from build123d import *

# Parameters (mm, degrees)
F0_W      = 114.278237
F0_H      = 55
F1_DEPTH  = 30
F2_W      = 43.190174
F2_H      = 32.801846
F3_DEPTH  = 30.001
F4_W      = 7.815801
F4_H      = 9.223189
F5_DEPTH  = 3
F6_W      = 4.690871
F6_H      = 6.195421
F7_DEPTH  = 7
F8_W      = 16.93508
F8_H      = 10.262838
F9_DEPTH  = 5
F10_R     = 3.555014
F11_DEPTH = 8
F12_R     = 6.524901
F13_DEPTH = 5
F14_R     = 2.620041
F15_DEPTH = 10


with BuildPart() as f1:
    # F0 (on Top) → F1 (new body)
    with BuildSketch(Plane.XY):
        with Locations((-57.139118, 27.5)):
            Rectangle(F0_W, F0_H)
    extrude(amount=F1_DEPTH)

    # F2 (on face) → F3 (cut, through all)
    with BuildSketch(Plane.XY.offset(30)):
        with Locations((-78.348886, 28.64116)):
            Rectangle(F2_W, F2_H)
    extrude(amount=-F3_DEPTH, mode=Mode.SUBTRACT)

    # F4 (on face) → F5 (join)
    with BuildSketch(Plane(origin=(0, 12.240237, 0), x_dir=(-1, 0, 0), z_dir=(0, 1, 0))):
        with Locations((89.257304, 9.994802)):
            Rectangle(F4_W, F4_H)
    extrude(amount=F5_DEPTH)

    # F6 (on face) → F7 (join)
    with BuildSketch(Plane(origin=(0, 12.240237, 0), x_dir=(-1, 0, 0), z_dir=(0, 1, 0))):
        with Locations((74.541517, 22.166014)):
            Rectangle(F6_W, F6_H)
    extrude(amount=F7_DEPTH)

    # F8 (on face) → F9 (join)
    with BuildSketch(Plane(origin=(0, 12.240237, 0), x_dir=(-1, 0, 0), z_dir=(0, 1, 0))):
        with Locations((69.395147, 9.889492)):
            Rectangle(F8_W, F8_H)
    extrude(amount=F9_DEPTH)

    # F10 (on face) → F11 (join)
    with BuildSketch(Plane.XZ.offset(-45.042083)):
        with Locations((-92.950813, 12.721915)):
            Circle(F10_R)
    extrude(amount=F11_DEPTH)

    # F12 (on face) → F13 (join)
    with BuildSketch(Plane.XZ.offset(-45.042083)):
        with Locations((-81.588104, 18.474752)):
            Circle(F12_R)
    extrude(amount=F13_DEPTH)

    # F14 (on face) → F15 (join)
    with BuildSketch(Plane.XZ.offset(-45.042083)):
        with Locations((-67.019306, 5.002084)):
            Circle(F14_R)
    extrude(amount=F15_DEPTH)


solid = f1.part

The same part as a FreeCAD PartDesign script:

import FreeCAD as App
import Part
import Sketcher
Q = App.Units.Quantity


def add_polygon(sketch, points):
    """Adds a closed chain of lines whose ends are joined by coincident constraints."""
    first, n = sketch.GeometryCount, len(points)
    for a, b in zip(points, points[1:] + points[:1]):
        sketch.addGeometry(Part.LineSegment(App.Vector(*a, 0), App.Vector(*b, 0)), False)
    for i in range(n):
        sketch.addConstraint(Sketcher.Constraint("Coincident", first + i, 2, first + (i + 1) % n, 1))

doc = App.newDocument("Part")
body = doc.addObject("PartDesign::Body", "Body")

sketch1 = doc.addObject("Sketcher::SketchObject", "Sketch")
body.addObject(sketch1)
sketch1.AttachmentSupport = (doc.XY_Plane, [""])
sketch1.MapMode = "FlatFace"
add_polygon(sketch1, [(-114, 55), (-114, 0), (0, 0), (0, 55)])
sketch1.addConstraint([
    Sketcher.Constraint("Vertical", 0),
    Sketcher.Constraint("Horizontal", 1),
    Sketcher.Constraint("Vertical", 2),
    Sketcher.Constraint("Horizontal", 3),
    Sketcher.Constraint("Coincident", 1, 2, -1, 1),
    Sketcher.Constraint("DistanceY", 0, 2, 0, 1, Q("55 mm")),
    Sketcher.Constraint("DistanceX", 1, 1, 1, 2, Q("114.278237 mm")),
])
pad1 = doc.addObject("PartDesign::Pad", "Pad")
body.addObject(pad1)
pad1.Profile = sketch1
pad1.Length = 30

sketch2 = doc.addObject("Sketcher::SketchObject", "Sketch001")
body.addObject(sketch2)
sketch2.AttachmentSupport = (doc.XY_Plane, [""])
sketch2.MapMode = "FlatFace"
sketch2.AttachmentOffset = App.Placement(App.Vector(0, 0, 30), App.Rotation())
add_polygon(sketch2, [(-100, 45), (-100, 12), (-57, 12), (-57, 45)])
sketch2.addConstraint([
    Sketcher.Constraint("Vertical", 0),
    Sketcher.Constraint("Horizontal", 1),
    Sketcher.Constraint("Vertical", 2),
    Sketcher.Constraint("Horizontal", 3),
    Sketcher.Constraint("DistanceX", 1, 2, -1, 1, Q("56.753799 mm")),
    Sketcher.Constraint("DistanceX", 1, 1, 1, 2, Q("43.190174 mm")),
    Sketcher.Constraint("DistanceY", 0, 2, 0, 1, Q("32.801846 mm")),
    Sketcher.Constraint("DistanceY", -1, 1, 0, 2, Q("12.240237 mm")),
])
pocket1 = doc.addObject("PartDesign::Pocket", "Pocket")
body.addObject(pocket1)
pocket1.Profile = sketch2
pocket1.Type = "ThroughAll"

sketch3 = doc.addObject("Sketcher::SketchObject", "Sketch002")
body.addObject(sketch3)
sketch3.AttachmentSupport = (doc.XZ_Plane, [""])
sketch3.MapMode = "FlatFace"
sketch3.AttachmentOffset = App.Placement(App.Vector(0, 0, -12.240237), App.Rotation())
add_polygon(sketch3, [(-85, 15), (-85, 5), (-93, 5), (-93, 15)])
sketch3.addConstraint([
    Sketcher.Constraint("Vertical", 0),
    Sketcher.Constraint("Horizontal", 1),
    Sketcher.Constraint("Vertical", 2),
    Sketcher.Constraint("Horizontal", 3),
    Sketcher.Constraint("DistanceX", 1, 2, 1, 1, Q("7.815801 mm")),
    Sketcher.Constraint("DistanceY", 0, 2, 0, 1, Q("9.223189 mm")),
    Sketcher.Constraint("DistanceX", 0, 2, -1, 1, Q("85.349403 mm")),
    Sketcher.Constraint("DistanceY", -1, 1, 0, 2, Q("5.383208 mm")),
])
pad2 = doc.addObject("PartDesign::Pad", "Pad001")
body.addObject(pad2)
pad2.Profile = sketch3
pad2.Length = 3
pad2.Reversed = True

sketch4 = doc.addObject("Sketcher::SketchObject", "Sketch003")
body.addObject(sketch4)
sketch4.AttachmentSupport = (doc.XZ_Plane, [""])
sketch4.MapMode = "FlatFace"
sketch4.AttachmentOffset = App.Placement(App.Vector(0, 0, -12.240237), App.Rotation())
add_polygon(sketch4, [(-72.2, 25.3), (-72.2, 19.1), (-76.9, 19.1), (-76.9, 25.3)])
sketch4.addConstraint([
    Sketcher.Constraint("Vertical", 0),
    Sketcher.Constraint("Horizontal", 1),
    Sketcher.Constraint("Vertical", 2),
    Sketcher.Constraint("Horizontal", 3),
    Sketcher.Constraint("DistanceX", 1, 2, 1, 1, Q("4.690871 mm")),
    Sketcher.Constraint("DistanceY", 0, 2, 0, 1, Q("6.195421 mm")),
    Sketcher.Constraint("DistanceX", 0, 2, -1, 1, Q("72.196082 mm")),
    Sketcher.Constraint("DistanceY", -1, 1, 0, 2, Q("19.068303 mm")),
])
pad3 = doc.addObject("PartDesign::Pad", "Pad002")
body.addObject(pad3)
pad3.Profile = sketch4
pad3.Length = 7
pad3.Reversed = True

sketch5 = doc.addObject("Sketcher::SketchObject", "Sketch004")
body.addObject(sketch5)
sketch5.AttachmentSupport = (doc.XZ_Plane, [""])
sketch5.MapMode = "FlatFace"
sketch5.AttachmentOffset = App.Placement(App.Vector(0, 0, -12.240237), App.Rotation())
add_polygon(sketch5, [(-61, 15), (-61, 5), (-78, 5), (-78, 15)])
sketch5.addConstraint([
    Sketcher.Constraint("Vertical", 0),
    Sketcher.Constraint("Horizontal", 1),
    Sketcher.Constraint("Vertical", 2),
    Sketcher.Constraint("Horizontal", 3),
    Sketcher.Constraint("DistanceX", 1, 2, 1, 1, Q("16.93508 mm")),
    Sketcher.Constraint("DistanceY", 0, 2, 0, 1, Q("10.262838 mm")),
    Sketcher.Constraint("DistanceY", -1, 1, 2, 2, Q("15.020911 mm")),
    Sketcher.Constraint("DistanceX", 0, 2, -1, 1, Q("60.927607 mm")),
])
pad4 = doc.addObject("PartDesign::Pad", "Pad003")
body.addObject(pad4)
pad4.Profile = sketch5
pad4.Length = 5
pad4.Reversed = True

sketch6 = doc.addObject("Sketcher::SketchObject", "Sketch005")
body.addObject(sketch6)
sketch6.AttachmentSupport = (doc.XZ_Plane, [""])
sketch6.MapMode = "FlatFace"
sketch6.AttachmentOffset = App.Placement(App.Vector(0, 0, -45.042083), App.Rotation())
sketch6.addGeometry(Part.Circle(App.Vector(-93, 12.7, 0), App.Vector(0, 0, 1), 3.6), False)
sketch6.addConstraint([
    Sketcher.Constraint("Diameter", 0, Q("7.110028 mm")),
    Sketcher.Constraint("DistanceX", 0, 3, -1, 1, Q("92.950813 mm")),
    Sketcher.Constraint("DistanceY", -1, 1, 0, 3, Q("12.721915 mm")),
])
pad5 = doc.addObject("PartDesign::Pad", "Pad004")
body.addObject(pad5)
pad5.Profile = sketch6
pad5.Length = 8

sketch7 = doc.addObject("Sketcher::SketchObject", "Sketch006")
body.addObject(sketch7)
sketch7.AttachmentSupport = (doc.XZ_Plane, [""])
sketch7.MapMode = "FlatFace"
sketch7.AttachmentOffset = App.Placement(App.Vector(0, 0, -45.042083), App.Rotation())
sketch7.addGeometry(Part.Circle(App.Vector(-82, 18, 0), App.Vector(0, 0, 1), 7), False)
sketch7.addConstraint([
    Sketcher.Constraint("Diameter", 0, Q("13.049802 mm")),
    Sketcher.Constraint("DistanceY", -1, 1, 0, 3, Q("18.474752 mm")),
    Sketcher.Constraint("DistanceX", 0, 3, -1, 1, Q("81.588104 mm")),
])
pad6 = doc.addObject("PartDesign::Pad", "Pad005")
body.addObject(pad6)
pad6.Profile = sketch7
pad6.Length = 5

sketch8 = doc.addObject("Sketcher::SketchObject", "Sketch007")
body.addObject(sketch8)
sketch8.AttachmentSupport = (doc.XZ_Plane, [""])
sketch8.MapMode = "FlatFace"
sketch8.AttachmentOffset = App.Placement(App.Vector(0, 0, -45.042083), App.Rotation())
sketch8.addGeometry(Part.Circle(App.Vector(-67, 5, 0), App.Vector(0, 0, 1), 2.6), False)
sketch8.addConstraint([
    Sketcher.Constraint("Diameter", 0, Q("5.240082 mm")),
    Sketcher.Constraint("DistanceX", 0, 3, -1, 1, Q("67.019306 mm")),
    Sketcher.Constraint("DistanceY", -1, 1, 0, 3, Q("5.002084 mm")),
])
pad7 = doc.addObject("PartDesign::Pad", "Pad006")
body.addObject(pad7)
pad7.Profile = sketch8
pad7.Length = 10

doc.recompute()
